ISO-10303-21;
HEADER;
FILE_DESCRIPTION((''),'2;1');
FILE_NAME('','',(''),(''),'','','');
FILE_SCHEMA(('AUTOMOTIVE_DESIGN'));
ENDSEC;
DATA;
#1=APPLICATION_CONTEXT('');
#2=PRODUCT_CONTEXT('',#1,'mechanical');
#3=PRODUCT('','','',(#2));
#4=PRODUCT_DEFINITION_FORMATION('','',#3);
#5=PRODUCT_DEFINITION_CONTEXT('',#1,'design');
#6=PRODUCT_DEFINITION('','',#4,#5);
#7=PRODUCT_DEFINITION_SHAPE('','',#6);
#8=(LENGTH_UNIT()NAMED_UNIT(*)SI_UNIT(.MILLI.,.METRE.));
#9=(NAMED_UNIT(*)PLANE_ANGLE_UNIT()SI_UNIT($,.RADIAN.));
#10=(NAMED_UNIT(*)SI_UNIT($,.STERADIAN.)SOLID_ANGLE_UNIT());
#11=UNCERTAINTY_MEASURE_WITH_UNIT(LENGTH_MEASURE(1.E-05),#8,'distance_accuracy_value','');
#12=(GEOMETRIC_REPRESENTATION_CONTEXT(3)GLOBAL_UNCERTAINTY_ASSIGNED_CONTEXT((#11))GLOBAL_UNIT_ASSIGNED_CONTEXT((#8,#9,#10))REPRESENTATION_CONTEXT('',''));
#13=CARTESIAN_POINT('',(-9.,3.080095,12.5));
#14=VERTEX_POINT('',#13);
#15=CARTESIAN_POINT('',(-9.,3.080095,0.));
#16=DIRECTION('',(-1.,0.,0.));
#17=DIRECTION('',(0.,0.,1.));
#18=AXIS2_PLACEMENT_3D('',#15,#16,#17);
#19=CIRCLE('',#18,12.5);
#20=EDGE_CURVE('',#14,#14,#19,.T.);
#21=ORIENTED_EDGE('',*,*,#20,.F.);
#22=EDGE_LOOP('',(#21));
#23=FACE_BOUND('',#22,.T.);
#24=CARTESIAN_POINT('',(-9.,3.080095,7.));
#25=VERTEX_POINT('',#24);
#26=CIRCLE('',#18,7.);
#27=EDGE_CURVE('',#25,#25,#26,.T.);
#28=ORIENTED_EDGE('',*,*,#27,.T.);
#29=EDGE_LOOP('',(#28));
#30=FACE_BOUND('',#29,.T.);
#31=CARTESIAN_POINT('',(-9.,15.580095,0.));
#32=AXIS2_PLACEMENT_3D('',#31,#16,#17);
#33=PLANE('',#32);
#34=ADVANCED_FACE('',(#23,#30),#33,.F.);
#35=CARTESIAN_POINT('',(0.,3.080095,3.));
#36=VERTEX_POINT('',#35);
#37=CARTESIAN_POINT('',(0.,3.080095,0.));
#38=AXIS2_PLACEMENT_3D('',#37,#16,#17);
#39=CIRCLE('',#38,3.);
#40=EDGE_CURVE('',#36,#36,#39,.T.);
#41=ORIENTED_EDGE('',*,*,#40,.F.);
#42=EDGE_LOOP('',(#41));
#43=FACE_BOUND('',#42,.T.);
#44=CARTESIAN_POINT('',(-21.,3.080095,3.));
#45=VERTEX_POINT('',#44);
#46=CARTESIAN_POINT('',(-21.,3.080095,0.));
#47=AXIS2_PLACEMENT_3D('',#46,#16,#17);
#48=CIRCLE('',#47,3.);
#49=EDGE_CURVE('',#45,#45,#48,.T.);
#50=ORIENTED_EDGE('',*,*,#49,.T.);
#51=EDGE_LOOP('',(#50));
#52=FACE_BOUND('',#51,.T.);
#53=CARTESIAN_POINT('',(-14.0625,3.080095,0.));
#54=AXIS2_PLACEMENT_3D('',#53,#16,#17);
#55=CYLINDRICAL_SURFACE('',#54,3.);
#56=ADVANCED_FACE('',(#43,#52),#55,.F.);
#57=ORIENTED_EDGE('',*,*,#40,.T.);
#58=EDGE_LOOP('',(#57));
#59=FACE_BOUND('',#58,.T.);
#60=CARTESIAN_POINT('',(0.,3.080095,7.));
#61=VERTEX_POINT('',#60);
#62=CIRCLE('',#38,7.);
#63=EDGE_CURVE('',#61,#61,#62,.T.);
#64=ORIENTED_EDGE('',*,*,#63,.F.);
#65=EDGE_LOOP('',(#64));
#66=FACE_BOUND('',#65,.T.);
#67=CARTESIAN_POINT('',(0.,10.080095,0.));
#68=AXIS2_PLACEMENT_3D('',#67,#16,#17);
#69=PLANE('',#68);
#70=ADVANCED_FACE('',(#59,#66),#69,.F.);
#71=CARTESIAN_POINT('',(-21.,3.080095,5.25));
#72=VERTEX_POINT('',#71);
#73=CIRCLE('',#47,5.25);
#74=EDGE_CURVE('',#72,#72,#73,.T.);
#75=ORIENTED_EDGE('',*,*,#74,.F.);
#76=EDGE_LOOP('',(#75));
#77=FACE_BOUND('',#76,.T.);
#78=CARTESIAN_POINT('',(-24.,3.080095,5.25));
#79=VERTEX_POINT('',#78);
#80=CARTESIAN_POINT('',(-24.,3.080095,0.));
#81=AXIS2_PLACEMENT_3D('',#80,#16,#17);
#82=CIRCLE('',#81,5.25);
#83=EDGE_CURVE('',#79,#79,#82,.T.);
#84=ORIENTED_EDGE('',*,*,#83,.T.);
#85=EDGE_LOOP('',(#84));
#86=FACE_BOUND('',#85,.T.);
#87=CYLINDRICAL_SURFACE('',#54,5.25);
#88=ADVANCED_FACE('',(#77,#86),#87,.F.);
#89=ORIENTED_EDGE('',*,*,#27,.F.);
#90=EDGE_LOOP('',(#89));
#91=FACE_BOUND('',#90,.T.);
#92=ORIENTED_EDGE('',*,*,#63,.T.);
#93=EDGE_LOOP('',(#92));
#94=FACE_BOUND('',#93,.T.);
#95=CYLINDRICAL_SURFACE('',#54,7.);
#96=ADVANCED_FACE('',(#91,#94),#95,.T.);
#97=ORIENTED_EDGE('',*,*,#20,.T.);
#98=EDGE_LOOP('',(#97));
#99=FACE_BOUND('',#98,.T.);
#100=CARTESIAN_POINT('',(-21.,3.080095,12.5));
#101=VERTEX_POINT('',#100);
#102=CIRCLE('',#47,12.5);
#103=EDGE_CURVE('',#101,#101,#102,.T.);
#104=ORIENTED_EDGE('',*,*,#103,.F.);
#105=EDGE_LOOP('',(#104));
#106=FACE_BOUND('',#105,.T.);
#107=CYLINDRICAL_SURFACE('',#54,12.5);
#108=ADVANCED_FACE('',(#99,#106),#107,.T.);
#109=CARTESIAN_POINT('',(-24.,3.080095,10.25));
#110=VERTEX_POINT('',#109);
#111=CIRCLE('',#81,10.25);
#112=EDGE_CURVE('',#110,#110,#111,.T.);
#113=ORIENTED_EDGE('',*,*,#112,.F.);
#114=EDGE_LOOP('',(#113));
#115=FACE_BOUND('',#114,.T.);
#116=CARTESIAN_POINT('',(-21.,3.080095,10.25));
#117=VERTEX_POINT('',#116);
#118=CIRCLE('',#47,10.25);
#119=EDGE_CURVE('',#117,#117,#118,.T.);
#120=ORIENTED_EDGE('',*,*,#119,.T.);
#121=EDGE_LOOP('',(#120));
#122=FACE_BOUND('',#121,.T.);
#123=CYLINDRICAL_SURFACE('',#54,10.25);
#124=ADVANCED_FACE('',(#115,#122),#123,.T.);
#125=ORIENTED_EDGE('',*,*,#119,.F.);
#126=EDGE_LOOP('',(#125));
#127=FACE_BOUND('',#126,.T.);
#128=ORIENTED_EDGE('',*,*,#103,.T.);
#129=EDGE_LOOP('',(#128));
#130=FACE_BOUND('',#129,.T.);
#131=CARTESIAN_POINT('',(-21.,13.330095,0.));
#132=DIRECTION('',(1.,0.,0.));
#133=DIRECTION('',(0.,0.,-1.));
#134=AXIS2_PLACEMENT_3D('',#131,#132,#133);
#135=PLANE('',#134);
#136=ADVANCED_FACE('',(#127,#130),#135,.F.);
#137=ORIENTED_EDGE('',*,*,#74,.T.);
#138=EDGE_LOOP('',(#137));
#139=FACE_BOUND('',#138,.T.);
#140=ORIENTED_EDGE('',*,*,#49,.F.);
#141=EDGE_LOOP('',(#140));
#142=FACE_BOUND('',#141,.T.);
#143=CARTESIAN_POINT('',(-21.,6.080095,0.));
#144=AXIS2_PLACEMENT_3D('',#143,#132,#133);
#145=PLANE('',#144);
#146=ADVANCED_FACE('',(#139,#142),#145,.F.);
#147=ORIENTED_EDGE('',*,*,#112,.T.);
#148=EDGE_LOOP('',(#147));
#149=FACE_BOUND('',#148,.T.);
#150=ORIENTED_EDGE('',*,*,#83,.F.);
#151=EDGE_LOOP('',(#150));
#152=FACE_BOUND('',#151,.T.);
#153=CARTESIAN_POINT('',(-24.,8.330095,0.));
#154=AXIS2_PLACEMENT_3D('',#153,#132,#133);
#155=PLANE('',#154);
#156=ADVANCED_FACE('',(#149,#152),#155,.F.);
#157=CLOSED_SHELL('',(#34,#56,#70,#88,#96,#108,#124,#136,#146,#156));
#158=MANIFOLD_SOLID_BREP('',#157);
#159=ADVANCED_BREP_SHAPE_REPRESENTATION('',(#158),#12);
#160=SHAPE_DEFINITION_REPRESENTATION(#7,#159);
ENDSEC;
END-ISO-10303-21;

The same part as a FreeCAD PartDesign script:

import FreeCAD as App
import Part
import Sketcher
Q = App.Units.Quantity

doc = App.newDocument("Part")
body = doc.addObject("PartDesign::Body", "Body")

# Sketch on XY plane
sketch1 = doc.addObject("Sketcher::SketchObject", "Sketch")
body.addObject(sketch1)
sketch1.AttachmentSupport = (doc.XY_Plane, [""])
sketch1.MapMode = "FlatFace"
sketch1.addGeometry(Part.LineSegment(App.Vector(-24, 8.3, 0), App.Vector(-21, 8.3, 0)), False)
sketch1.addGeometry(Part.LineSegment(App.Vector(-21, 8.3, 0), App.Vector(-21, 6.1, 0)), False)
sketch1.addGeometry(Part.LineSegment(App.Vector(-21, 6.1, 0), App.Vector(0, 6.1, 0)), False)
sketch1.addGeometry(Part.LineSegment(App.Vector(0, 6.1, 0), App.Vector(0, 10.1, 0)), False)
sketch1.addGeometry(Part.LineSegment(App.Vector(0, 10.1, 0), App.Vector(-9, 10.1, 0)), False)
sketch1.addGeometry(Part.LineSegment(App.Vector(-9, 10.1, 0), App.Vector(-9, 15.6, 0)), False)
sketch1.addGeometry(Part.LineSegment(App.Vector(-9, 15.6, 0), App.Vector(-21, 15.6, 0)), False)
sketch1.addGeometry(Part.LineSegment(App.Vector(-21, 15.6, 0), App.Vector(-21, 13.3, 0)), False)
sketch1.addGeometry(Part.LineSegment(App.Vector(-21, 13.3, 0), App.Vector(-24, 13.3, 0)), False)
sketch1.addGeometry(Part.LineSegment(App.Vector(-24, 13.3, 0), App.Vector(-24, 8.3, 0)), False)
sketch1.addGeometry(Part.LineSegment(App.Vector(-24, 3.1, 0), App.Vector(0, 3.1, 0)), True)  # axis
sketch1.addConstraint(Sketcher.Constraint("Coincident", 0, 2, 1, 1))
sketch1.addConstraint(Sketcher.Constraint("Coincident", 1, 2, 2, 1))
sketch1.addConstraint(Sketcher.Constraint("Coincident", 2, 2, 3, 1))
sketch1.addConstraint(Sketcher.Constraint("Coincident", 3, 2, 4, 1))
sketch1.addConstraint(Sketcher.Constraint("Coincident", 4, 2, 5, 1))
sketch1.addConstraint(Sketcher.Constraint("Coincident", 5, 2, 6, 1))
sketch1.addConstraint(Sketcher.Constraint("Coincident", 6, 2, 7, 1))
sketch1.addConstraint(Sketcher.Constraint("Coincident", 7, 2, 8, 1))
sketch1.addConstraint(Sketcher.Constraint("Coincident", 8, 2, 9, 1))
sketch1.addConstraint(Sketcher.Constraint("Coincident", 9, 2, 0, 1))
sketch1.addConstraint(Sketcher.Constraint("Horizontal", 0))
sketch1.addConstraint(Sketcher.Constraint("Vertical", 1))
sketch1.addConstraint(Sketcher.Constraint("Horizontal", 2))
sketch1.addConstraint(Sketcher.Constraint("Vertical", 3))
sketch1.addConstraint(Sketcher.Constraint("Horizontal", 4))
sketch1.addConstraint(Sketcher.Constraint("Vertical", 5))
sketch1.addConstraint(Sketcher.Constraint("Horizontal", 6))
sketch1.addConstraint(Sketcher.Constraint("Vertical", 7))
sketch1.addConstraint(Sketcher.Constraint("Horizontal", 8))
sketch1.addConstraint(Sketcher.Constraint("Vertical", 9))
sketch1.addConstraint(Sketcher.Constraint("Horizontal", 10))
sketch1.addConstraint(Sketcher.Constraint("PointOnObject", 2, 2, -2))
sketch1.addConstraint(Sketcher.Constraint("PointOnObject", 10, 2, -2))
sketch1.addConstraint(Sketcher.Constraint("Vertical", 1, 2, 6, 2))
sketch1.addConstraint(Sketcher.Constraint("Vertical", 9, 2, 10, 1))
sketch1.addConstraint(Sketcher.Constraint("Equal", 1, 7))
sketch1.addConstraint(Sketcher.Constraint("DistanceX", 0, 1, 0, 2, Q("3 mm")))
sketch1.addConstraint(Sketcher.Constraint("DistanceX", 2, 1, 2, 2, Q("21 mm")))
sketch1.addConstraint(Sketcher.Constraint("DistanceX", 4, 2, 4, 1, Q("9 mm")))
sketch1.addConstraint(Sketcher.Constraint("DistanceY", 3, 1, 3, 2, Q("4 mm")))
sketch1.addConstraint(Sketcher.Constraint("DistanceY", 9, 2, 9, 1, Q("5 mm")))
sketch1.addConstraint(Sketcher.Constraint("DistanceY", 5, 1, 5, 2, Q("5.5 mm")))
sketch1.addConstraint(Sketcher.Constraint("DistanceY", 10, 1, 1, 2, Q("3 mm")))
sketch1.addConstraint(Sketcher.Constraint("DistanceY", -1, 1, 0, 2, Q("8.330095 mm")))
revolution = doc.addObject("PartDesign::Revolution", "Revolution")
body.addObject(revolution)
revolution.Profile = sketch1
revolution.ReferenceAxis = (sketch1, ["Axis0"])
revolution.Angle = 360

doc.recompute()
